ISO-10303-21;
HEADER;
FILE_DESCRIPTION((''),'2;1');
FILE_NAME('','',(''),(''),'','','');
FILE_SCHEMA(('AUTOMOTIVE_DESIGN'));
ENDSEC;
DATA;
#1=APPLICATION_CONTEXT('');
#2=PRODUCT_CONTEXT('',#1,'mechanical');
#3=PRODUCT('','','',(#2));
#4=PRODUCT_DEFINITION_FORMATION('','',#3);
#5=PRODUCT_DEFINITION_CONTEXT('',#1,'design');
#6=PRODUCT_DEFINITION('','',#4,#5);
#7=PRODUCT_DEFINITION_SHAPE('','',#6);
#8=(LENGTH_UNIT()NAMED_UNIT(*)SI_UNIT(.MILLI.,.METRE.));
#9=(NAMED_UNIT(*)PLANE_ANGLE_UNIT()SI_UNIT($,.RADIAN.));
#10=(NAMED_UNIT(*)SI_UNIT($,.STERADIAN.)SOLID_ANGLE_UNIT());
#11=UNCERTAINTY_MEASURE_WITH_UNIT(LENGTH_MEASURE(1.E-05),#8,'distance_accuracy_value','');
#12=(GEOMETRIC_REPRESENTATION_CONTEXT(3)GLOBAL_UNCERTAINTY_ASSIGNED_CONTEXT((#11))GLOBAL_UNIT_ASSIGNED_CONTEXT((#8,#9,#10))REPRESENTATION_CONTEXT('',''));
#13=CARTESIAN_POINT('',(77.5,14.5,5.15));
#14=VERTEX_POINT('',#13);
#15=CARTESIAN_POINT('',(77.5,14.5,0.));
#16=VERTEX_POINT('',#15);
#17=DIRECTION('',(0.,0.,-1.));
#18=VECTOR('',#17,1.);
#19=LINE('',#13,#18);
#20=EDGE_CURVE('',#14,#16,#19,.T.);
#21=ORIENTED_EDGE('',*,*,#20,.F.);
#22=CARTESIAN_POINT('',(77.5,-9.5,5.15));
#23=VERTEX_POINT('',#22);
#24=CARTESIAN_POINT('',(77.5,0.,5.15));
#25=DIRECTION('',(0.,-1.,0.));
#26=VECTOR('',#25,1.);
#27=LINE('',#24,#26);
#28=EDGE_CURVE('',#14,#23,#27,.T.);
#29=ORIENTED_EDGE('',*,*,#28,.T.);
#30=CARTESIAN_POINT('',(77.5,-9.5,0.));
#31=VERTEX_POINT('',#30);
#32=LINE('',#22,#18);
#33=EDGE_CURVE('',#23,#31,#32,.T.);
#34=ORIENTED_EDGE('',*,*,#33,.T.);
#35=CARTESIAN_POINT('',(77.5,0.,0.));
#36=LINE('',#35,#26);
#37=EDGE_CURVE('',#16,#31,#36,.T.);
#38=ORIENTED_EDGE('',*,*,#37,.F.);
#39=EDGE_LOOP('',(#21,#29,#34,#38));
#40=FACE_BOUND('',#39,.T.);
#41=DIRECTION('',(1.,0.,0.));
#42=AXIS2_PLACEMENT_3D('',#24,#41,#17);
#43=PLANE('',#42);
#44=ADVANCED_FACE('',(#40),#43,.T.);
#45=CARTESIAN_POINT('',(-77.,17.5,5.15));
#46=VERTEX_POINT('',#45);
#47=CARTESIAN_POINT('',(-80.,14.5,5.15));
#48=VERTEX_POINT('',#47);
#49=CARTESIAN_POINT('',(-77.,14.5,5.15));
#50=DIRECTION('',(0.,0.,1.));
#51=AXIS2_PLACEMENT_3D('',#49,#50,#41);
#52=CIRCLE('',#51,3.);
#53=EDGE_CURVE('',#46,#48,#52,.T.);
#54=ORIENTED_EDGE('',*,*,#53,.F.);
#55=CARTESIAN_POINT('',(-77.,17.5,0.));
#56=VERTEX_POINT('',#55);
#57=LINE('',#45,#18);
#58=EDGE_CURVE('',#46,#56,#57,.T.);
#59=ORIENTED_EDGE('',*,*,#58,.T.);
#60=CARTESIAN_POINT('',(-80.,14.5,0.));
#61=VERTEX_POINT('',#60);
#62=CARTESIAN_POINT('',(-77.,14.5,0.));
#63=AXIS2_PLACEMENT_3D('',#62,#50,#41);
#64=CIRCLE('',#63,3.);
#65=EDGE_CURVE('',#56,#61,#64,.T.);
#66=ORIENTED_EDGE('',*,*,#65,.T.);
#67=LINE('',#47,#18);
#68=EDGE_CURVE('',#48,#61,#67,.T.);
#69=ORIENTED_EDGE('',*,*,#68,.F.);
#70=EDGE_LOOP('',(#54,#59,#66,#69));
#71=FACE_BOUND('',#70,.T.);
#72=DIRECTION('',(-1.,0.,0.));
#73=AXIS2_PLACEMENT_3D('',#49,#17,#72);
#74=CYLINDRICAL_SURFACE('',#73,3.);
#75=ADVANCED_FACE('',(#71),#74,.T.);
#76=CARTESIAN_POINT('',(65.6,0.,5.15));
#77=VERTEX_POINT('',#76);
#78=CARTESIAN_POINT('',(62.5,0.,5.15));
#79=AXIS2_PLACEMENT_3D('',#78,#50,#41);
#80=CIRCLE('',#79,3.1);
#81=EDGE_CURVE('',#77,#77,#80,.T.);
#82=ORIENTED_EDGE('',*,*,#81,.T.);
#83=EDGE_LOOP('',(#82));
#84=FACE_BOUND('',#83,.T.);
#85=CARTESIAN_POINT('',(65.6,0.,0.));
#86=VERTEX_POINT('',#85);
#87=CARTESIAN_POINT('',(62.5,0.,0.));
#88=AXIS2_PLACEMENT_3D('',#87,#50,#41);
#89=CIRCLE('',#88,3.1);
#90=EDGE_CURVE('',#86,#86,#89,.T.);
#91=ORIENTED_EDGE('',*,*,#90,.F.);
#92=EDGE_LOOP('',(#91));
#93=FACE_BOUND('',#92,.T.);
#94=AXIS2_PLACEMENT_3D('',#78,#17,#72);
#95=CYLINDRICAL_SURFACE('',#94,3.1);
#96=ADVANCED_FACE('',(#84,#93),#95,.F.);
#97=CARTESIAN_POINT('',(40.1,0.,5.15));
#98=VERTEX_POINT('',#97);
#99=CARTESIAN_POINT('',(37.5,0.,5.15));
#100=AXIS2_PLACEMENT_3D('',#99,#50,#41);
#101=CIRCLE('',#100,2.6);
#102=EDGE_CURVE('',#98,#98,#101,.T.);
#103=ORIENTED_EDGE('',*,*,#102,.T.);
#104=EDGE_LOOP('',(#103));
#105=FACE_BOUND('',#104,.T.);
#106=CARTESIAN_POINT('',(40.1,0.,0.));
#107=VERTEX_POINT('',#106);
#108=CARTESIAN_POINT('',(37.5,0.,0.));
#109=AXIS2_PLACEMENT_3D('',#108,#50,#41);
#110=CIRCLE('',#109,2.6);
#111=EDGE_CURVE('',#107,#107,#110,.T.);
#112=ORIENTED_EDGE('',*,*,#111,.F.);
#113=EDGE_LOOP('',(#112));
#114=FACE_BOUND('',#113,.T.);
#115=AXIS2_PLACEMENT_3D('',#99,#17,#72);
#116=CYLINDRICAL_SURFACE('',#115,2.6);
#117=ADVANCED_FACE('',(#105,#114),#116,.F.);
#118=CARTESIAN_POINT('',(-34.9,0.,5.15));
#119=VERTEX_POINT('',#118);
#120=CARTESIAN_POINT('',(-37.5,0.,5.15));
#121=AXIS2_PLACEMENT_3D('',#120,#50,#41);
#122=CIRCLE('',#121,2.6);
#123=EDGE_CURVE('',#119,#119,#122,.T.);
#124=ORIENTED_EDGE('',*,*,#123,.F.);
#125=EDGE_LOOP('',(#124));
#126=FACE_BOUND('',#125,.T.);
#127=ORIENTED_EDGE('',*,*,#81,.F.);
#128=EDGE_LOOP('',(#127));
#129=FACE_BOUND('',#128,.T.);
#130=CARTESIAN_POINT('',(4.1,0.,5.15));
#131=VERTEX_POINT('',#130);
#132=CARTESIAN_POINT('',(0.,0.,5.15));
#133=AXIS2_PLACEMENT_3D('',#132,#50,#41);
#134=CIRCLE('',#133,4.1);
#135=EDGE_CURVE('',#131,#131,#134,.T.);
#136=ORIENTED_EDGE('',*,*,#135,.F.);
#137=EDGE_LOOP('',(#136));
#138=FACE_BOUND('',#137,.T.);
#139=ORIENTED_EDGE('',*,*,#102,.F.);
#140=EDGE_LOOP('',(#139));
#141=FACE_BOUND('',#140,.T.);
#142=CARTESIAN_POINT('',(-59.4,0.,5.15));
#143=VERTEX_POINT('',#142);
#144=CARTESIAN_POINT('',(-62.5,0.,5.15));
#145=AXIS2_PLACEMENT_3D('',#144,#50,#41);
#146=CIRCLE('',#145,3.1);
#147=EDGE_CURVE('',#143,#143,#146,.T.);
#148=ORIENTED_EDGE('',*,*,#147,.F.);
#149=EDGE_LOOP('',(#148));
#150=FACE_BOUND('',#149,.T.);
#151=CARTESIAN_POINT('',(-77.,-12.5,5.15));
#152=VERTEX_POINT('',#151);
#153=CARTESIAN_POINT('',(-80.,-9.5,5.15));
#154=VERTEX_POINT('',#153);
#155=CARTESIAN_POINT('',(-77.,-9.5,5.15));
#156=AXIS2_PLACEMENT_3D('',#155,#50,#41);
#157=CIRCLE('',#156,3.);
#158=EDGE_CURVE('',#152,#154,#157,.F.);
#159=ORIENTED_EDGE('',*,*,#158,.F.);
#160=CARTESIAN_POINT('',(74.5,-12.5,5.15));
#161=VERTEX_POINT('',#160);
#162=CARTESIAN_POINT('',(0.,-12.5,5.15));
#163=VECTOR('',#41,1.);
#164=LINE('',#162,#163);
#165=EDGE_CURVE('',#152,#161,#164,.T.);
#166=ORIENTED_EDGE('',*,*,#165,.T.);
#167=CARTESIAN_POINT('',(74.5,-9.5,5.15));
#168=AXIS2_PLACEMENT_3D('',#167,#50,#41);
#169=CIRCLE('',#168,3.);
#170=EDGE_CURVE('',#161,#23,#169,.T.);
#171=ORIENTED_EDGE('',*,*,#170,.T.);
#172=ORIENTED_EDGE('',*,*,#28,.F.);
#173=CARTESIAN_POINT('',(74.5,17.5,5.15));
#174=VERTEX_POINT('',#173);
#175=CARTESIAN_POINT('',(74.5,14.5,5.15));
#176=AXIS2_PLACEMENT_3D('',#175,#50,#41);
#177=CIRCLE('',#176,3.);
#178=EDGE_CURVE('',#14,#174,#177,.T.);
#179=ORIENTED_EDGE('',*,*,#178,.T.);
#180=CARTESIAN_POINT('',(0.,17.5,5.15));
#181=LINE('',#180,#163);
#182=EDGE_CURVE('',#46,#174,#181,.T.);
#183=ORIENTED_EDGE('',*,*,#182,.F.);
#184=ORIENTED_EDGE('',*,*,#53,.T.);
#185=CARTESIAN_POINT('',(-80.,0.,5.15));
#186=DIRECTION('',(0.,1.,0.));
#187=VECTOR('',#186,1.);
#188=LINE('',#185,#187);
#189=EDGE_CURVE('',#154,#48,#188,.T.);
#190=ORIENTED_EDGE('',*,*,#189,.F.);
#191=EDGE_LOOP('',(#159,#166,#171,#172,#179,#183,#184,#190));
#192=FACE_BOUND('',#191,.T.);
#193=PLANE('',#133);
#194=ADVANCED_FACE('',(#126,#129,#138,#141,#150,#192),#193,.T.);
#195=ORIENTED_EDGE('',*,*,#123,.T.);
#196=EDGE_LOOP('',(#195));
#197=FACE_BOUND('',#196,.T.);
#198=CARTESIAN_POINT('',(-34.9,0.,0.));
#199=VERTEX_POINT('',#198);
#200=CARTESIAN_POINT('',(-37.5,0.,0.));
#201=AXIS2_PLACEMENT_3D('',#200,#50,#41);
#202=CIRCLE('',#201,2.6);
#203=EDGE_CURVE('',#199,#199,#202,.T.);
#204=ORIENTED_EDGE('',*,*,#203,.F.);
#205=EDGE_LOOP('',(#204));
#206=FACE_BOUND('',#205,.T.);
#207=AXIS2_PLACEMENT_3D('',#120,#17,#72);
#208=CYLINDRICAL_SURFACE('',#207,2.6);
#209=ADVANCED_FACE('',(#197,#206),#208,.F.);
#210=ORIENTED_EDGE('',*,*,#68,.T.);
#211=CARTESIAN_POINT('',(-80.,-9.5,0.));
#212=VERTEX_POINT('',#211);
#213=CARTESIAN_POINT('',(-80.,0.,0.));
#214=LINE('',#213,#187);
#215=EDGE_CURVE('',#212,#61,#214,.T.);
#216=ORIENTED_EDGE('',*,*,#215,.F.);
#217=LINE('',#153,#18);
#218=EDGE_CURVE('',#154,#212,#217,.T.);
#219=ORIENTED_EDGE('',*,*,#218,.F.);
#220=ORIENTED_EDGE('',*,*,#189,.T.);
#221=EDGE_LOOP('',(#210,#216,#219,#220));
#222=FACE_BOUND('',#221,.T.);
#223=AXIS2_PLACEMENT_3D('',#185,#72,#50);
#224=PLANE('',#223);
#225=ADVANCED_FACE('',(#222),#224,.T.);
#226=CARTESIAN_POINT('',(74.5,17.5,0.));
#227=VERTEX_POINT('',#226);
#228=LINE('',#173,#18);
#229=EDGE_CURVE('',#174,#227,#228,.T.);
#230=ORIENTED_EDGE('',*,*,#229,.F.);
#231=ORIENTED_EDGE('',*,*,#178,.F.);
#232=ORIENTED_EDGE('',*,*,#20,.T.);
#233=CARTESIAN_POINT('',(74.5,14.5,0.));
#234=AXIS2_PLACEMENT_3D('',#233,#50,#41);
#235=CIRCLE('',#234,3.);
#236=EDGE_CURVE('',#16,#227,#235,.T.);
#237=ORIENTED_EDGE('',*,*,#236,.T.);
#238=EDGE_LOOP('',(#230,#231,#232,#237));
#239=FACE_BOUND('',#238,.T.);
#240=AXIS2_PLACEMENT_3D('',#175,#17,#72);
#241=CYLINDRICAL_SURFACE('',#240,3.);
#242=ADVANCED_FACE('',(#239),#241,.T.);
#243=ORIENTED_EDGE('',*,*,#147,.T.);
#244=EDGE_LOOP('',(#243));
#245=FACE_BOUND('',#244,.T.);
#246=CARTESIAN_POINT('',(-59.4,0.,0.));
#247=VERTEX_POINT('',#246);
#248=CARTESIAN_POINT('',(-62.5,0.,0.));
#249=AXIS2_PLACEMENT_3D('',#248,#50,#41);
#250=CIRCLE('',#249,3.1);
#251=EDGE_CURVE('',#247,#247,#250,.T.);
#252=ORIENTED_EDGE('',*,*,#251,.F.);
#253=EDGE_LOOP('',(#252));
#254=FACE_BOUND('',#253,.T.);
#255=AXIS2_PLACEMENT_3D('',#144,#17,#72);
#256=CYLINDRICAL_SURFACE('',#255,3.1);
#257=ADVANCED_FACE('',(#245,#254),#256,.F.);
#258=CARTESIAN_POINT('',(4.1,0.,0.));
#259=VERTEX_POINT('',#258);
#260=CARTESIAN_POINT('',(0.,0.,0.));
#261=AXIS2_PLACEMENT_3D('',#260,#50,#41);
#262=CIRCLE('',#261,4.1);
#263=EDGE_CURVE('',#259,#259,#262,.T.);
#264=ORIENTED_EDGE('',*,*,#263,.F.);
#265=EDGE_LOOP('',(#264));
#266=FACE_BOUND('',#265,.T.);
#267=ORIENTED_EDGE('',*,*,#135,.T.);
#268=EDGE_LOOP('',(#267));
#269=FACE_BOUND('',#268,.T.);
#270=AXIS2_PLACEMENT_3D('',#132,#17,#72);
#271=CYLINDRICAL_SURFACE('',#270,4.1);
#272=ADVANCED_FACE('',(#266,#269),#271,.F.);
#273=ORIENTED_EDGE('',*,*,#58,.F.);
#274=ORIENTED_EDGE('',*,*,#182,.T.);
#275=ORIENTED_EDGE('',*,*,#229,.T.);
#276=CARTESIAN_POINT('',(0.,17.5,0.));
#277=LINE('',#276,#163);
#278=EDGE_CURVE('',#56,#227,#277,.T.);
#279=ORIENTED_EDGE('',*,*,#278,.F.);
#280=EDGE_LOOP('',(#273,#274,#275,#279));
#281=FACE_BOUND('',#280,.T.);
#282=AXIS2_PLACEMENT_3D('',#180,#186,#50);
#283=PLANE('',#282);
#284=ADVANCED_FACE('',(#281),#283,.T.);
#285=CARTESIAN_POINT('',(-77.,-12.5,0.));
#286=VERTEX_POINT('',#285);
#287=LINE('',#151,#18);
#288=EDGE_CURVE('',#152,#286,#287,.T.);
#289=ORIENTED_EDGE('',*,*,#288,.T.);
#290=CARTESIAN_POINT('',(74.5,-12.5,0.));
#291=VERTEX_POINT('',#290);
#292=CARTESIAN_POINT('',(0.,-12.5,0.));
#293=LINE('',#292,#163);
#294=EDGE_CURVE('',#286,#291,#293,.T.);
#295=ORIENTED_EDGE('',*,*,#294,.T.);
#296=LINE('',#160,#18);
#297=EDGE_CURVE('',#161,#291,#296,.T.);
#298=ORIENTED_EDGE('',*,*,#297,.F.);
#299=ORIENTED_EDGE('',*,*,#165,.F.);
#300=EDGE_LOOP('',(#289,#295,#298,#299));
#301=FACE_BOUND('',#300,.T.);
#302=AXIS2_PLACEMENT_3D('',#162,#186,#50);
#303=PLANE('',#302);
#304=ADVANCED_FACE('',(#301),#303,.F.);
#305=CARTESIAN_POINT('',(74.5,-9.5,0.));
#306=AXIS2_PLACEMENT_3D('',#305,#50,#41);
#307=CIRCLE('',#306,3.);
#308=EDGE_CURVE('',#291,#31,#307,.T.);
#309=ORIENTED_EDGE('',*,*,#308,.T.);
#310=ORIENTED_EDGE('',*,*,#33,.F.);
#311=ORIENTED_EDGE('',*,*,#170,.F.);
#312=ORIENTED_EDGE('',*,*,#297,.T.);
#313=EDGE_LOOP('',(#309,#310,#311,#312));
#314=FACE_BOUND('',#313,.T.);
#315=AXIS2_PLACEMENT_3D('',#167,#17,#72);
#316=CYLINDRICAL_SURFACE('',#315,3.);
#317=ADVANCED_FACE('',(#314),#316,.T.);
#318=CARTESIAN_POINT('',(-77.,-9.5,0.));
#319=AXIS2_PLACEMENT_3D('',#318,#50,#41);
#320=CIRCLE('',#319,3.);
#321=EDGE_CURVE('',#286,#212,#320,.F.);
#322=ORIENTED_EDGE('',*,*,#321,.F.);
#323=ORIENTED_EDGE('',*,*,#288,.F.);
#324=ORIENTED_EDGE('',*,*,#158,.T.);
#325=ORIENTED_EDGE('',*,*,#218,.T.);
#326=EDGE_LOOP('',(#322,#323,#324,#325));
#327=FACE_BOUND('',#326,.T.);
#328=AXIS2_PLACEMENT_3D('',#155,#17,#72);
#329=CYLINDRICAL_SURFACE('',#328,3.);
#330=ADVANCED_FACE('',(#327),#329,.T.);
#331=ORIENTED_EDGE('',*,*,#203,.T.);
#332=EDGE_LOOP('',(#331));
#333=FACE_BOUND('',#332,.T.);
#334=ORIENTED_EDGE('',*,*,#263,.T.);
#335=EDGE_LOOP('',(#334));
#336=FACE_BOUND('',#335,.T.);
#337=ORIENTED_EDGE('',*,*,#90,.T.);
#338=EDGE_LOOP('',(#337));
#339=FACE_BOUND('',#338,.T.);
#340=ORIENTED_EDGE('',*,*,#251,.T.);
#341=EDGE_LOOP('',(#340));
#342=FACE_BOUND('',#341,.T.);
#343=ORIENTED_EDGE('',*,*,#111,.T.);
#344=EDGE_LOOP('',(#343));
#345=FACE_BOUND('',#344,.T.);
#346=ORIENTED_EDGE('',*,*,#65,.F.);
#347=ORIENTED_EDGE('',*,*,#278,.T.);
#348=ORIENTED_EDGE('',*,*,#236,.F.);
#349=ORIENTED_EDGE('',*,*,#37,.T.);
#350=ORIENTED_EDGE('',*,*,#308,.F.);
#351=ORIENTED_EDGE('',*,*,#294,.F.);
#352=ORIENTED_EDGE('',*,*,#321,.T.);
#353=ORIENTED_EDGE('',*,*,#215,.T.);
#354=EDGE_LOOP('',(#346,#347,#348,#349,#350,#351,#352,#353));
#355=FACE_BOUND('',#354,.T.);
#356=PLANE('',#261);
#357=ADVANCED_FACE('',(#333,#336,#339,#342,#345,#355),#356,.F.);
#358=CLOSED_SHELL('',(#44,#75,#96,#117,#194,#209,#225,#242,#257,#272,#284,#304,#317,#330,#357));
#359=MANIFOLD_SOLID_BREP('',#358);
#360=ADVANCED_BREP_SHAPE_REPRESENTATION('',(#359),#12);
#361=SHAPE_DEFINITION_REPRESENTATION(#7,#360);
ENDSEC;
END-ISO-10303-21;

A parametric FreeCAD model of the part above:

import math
import FreeCAD as App
import Part
import Sketcher

V = App.Vector
Q = App.Units.Quantity

doc = App.newDocument("Part")
params = doc.addObject("Spreadsheet::Sheet", "Params")
for row, (alias, value) in enumerate([
    ("sketch1_radius", "3 mm"),
    ("sketch1_diameter", "6.2 mm"),
    ("sketch1_diameter2", "5.2 mm"),
    ("sketch1_diameter3", "8.2 mm"),
    ("sketch1_height", "24 mm"),
    ("pad1_length", "5.15 mm"),
], start=1):
    params.set(f"A{row}", alias)
    params.set(f"B{row}", "=" + value)
    params.setAlias(f"B{row}", alias)

body = doc.addObject("PartDesign::Body", "Body")

sketch1 = doc.addObject("Sketcher::SketchObject", "Sketch")
body.addObject(sketch1)
sketch1.AttachmentSupport = (doc.XY_Plane, [""])
sketch1.MapMode = "FlatFace"
sketch1.addGeometry([
    Part.LineSegment(V(74.5, 17.5, 0), V(-77, 17.5, 0)),
    Part.ArcOfCircle(Part.Circle(V(-77, 14.5, 0), V(0, 0, 1), 3), math.radians(90), math.radians(180)),
    Part.LineSegment(V(-80, 14.5, 0), V(-80, -9.5, 0)),
    Part.ArcOfCircle(Part.Circle(V(-77, -9.5, 0), V(0, 0, 1), 3), math.radians(180), math.radians(270)),
    Part.LineSegment(V(-77, -12.5, 0), V(74.5, -12.5, 0)),
    Part.ArcOfCircle(Part.Circle(V(74.5, -9.5, 0), V(0, 0, 1), 3), math.radians(-90), math.radians(0)),
    Part.LineSegment(V(77.5, -9.5, 0), V(77.5, 14.5, 0)),
    Part.ArcOfCircle(Part.Circle(V(74.5, 14.5, 0), V(0, 0, 1), 3), math.radians(0), math.radians(90)),
    Part.Circle(V(62.5, 0, 0), V(0, 0, 1), 3.1),
    Part.Circle(V(37.5, 0, 0), V(0, 0, 1), 2.6),
    Part.Circle(V(0, 0, 0), V(0, 0, 1), 4.1),
    Part.Circle(V(-37.5, 0, 0), V(0, 0, 1), 2.6),
    Part.Circle(V(-62.5, 0, 0), V(0, 0, 1), 3.1),
], False)
sketch1.addConstraint([
    Sketcher.Constraint("Tangent", 0, 2, 1, 1),
    Sketcher.Constraint("Tangent", 1, 2, 2, 1),
    Sketcher.Constraint("Tangent", 2, 2, 3, 1),
    Sketcher.Constraint("Tangent", 3, 2, 4, 1),
    Sketcher.Constraint("Tangent", 4, 2, 5, 1),
    Sketcher.Constraint("Tangent", 5, 2, 6, 1),
    Sketcher.Constraint("Tangent", 6, 2, 7, 1),
    Sketcher.Constraint("Tangent", 7, 2, 0, 1),
    Sketcher.Constraint("Horizontal", 0),
    Sketcher.Constraint("Vertical", 2),
    Sketcher.Constraint("Horizontal", 4),
    Sketcher.Constraint("Vertical", 6),
    Sketcher.Constraint("Coincident", 10, 3, -1, 1),
    Sketcher.Constraint("Equal", 1, 3),
    Sketcher.Constraint("Equal", 3, 5),
    Sketcher.Constraint("Equal", 5, 7),
    Sketcher.Constraint("Equal", 9, 11),
    Sketcher.Constraint("Equal", 8, 12),
    Sketcher.Constraint("Symmetric", 9, 3, 11, 3, -1, 1),
    Sketcher.Constraint("Symmetric", 8, 3, 12, 3, -1, 1),
    Sketcher.Constraint("PointOnObject", 8, 3, -1),
    Sketcher.Constraint("PointOnObject", 9, 3, -1),
    Sketcher.Constraint("Radius", 1, Q("3 mm")),
    Sketcher.Constraint("Diameter", 8, Q("6.2 mm")),
    Sketcher.Constraint("Diameter", 9, Q("5.2 mm")),
    Sketcher.Constraint("Diameter", 10, Q("8.2 mm")),
    Sketcher.Constraint("DistanceY", 2, 2, 2, 1, Q("24 mm")),
    Sketcher.Constraint("DistanceX", 0, 2, 0, 1, Q("151.5 mm")),
    Sketcher.Constraint("DistanceX", 1, 3, -1, 1, Q("77 mm")),
    Sketcher.Constraint("DistanceX", 8, 3, 5, 3, Q("12 mm")),
    Sketcher.Constraint("DistanceX", 9, 3, 8, 3, Q("25 mm")),
    Sketcher.Constraint("DistanceY", -1, 1, 1, 3, Q("14.5 mm")),
])
sketch1.setExpression("Constraints[22]", "Params.sketch1_radius")
sketch1.setExpression("Constraints[23]", "Params.sketch1_diameter")
sketch1.setExpression("Constraints[24]", "Params.sketch1_diameter2")
sketch1.setExpression("Constraints[25]", "Params.sketch1_diameter3")
sketch1.setExpression("Constraints[26]", "Params.sketch1_height")
pad1 = doc.addObject("PartDesign::Pad", "Pad")
body.addObject(pad1)
pad1.Profile = sketch1
pad1.setExpression("Length", "Params.pad1_length")

doc.recompute()
